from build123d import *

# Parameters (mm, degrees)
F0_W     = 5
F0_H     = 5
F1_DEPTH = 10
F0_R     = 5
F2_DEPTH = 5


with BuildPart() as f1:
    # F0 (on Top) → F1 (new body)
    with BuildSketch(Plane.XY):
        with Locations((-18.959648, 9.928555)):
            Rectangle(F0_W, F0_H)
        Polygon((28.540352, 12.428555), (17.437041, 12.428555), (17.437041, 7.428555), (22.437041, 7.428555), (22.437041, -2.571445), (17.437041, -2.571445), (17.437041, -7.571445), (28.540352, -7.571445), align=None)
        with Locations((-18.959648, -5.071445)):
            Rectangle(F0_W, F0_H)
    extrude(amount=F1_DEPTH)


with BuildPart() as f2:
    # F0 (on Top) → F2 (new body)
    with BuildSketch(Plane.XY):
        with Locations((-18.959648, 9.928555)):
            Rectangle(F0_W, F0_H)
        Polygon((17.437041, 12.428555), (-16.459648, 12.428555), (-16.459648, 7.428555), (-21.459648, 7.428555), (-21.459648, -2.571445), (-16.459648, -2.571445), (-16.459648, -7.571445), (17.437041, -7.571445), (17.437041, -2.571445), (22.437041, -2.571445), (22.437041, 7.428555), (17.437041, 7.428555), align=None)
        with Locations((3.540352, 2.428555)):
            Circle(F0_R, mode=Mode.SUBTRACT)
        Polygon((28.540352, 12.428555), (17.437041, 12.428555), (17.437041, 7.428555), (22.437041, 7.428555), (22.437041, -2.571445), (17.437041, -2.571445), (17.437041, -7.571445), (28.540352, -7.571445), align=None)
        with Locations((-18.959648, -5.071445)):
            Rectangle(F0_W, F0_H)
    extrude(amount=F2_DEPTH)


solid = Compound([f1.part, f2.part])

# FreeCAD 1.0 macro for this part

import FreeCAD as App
import Part
import Sketcher

V = App.Vector
Q = App.Units.Quantity

doc = App.newDocument("Part")
body = doc.addObject("PartDesign::Body", "Body")
body.AllowCompound = True

# Sketch on XY plane
sketch1 = doc.addObject("Sketcher::SketchObject", "Sketch")
body.addObject(sketch1)
sketch1.AttachmentSupport = (doc.XY_Plane, [""])
sketch1.MapMode = "FlatFace"
sketch1.addGeometry(Part.LineSegment(V(-21.459648, 12.428555, 0), V(-21.459648, 7.428555, 0)), False)
sketch1.addGeometry(Part.LineSegment(V(-21.459648, 7.428555, 0), V(-16.459648, 7.428555, 0)), False)
sketch1.addGeometry(Part.LineSegment(V(-16.459648, 7.428555, 0), V(-16.459648, 12.428555, 0)), False)
sketch1.addGeometry(Part.LineSegment(V(-16.459648, 12.428555, 0), V(-21.459648, 12.428555, 0)), False)
sketch1.addGeometry(Part.LineSegment(V(28.540352, 12.428555, 0), V(17.437041, 12.428555, 0)), False)
sketch1.addGeometry(Part.LineSegment(V(17.437041, 12.428555, 0), V(17.437041, 7.428555, 0)), False)
sketch1.addGeometry(Part.LineSegment(V(17.437041, 7.428555, 0), V(22.437041, 7.428555, 0)), False)
sketch1.addGeometry(Part.LineSegment(V(22.437041, 7.428555, 0), V(22.437041, -2.571445, 0)), False)
sketch1.addGeometry(Part.LineSegment(V(22.437041, -2.571445, 0), V(17.437041, -2.571445, 0)), False)
sketch1.addGeometry(Part.LineSegment(V(17.437041, -2.571445, 0), V(17.437041, -7.571445, 0)), False)
sketch1.addGeometry(Part.LineSegment(V(17.437041, -7.571445, 0), V(28.540352, -7.571445, 0)), False)
sketch1.addGeometry(Part.LineSegment(V(28.540352, -7.571445, 0), V(28.540352, 12.428555, 0)), False)
sketch1.addGeometry(Part.LineSegment(V(-21.459648, -2.571445, 0), V(-21.459648, -7.571445, 0)), False)
sketch1.addGeometry(Part.LineSegment(V(-21.459648, -7.571445, 0), V(-16.459648, -7.571445, 0)), False)
sketch1.addGeometry(Part.LineSegment(V(-16.459648, -7.571445, 0), V(-16.459648, -2.571445, 0)), False)
sketch1.addGeometry(Part.LineSegment(V(-16.459648, -2.571445, 0), V(-21.459648, -2.571445, 0)), False)
sketch1.addConstraint(Sketcher.Constraint("Coincident", 0, 2, 1, 1))
sketch1.addConstraint(Sketcher.Constraint("Coincident", 1, 2, 2, 1))
sketch1.addConstraint(Sketcher.Constraint("Coincident", 2, 2, 3, 1))
sketch1.addConstraint(Sketcher.Constraint("Coincident", 3, 2, 0, 1))
sketch1.addConstraint(Sketcher.Constraint("Coincident", 4, 2, 5, 1))
sketch1.addConstraint(Sketcher.Constraint("Coincident", 5, 2, 6, 1))
sketch1.addConstraint(Sketcher.Constraint("Coincident", 6, 2, 7, 1))
sketch1.addConstraint(Sketcher.Constraint("Coincident", 7, 2, 8, 1))
sketch1.addConstraint(Sketcher.Constraint("Coincident", 8, 2, 9, 1))
sketch1.addConstraint(Sketcher.Constraint("Coincident", 9, 2, 10, 1))
sketch1.addConstraint(Sketcher.Constraint("Coincident", 10, 2, 11, 1))
sketch1.addConstraint(Sketcher.Constraint("Coincident", 11, 2, 4, 1))
sketch1.addConstraint(Sketcher.Constraint("Coincident", 12, 2, 13, 1))
sketch1.addConstraint(Sketcher.Constraint("Coincident", 13, 2, 14, 1))
sketch1.addConstraint(Sketcher.Constraint("Coincident", 14, 2, 15, 1))
sketch1.addConstraint(Sketcher.Constraint("Coincident", 15, 2, 12, 1))
sketch1.addConstraint(Sketcher.Constraint("Vertical", 0))
sketch1.addConstraint(Sketcher.Constraint("Horizontal", 1))
sketch1.addConstraint(Sketcher.Constraint("Vertical", 2))
sketch1.addConstraint(Sketcher.Constraint("Horizontal", 3))
sketch1.addConstraint(Sketcher.Constraint("Horizontal", 4))
sketch1.addConstraint(Sketcher.Constraint("Vertical", 5))
sketch1.addConstraint(Sketcher.Constraint("Horizontal", 6))
sketch1.addConstraint(Sketcher.Constraint("Vertical", 7))
sketch1.addConstraint(Sketcher.Constraint("Horizontal", 8))
sketch1.addConstraint(Sketcher.Constraint("Vertical", 9))
sketch1.addConstraint(Sketcher.Constraint("Horizontal", 10))
sketch1.addConstraint(Sketcher.Constraint("Vertical", 11))
sketch1.addConstraint(Sketcher.Constraint("Vertical", 12))
sketch1.addConstraint(Sketcher.Constraint("Horizontal", 13))
sketch1.addConstraint(Sketcher.Constraint("Vertical", 14))
sketch1.addConstraint(Sketcher.Constraint("Horizontal", 15))
sketch1.addConstraint(Sketcher.Constraint("Horizontal", 3, 2, 4, 2))
sketch1.addConstraint(Sketcher.Constraint("Horizontal", 1, 2, 5, 2))
sketch1.addConstraint(Sketcher.Constraint("Horizontal", 10, 2, 12, 2))
sketch1.addConstraint(Sketcher.Constraint("Horizontal", 8, 2, 14, 2))
sketch1.addConstraint(Sketcher.Constraint("Vertical", 5, 2, 8, 2))
sketch1.addConstraint(Sketcher.Constraint("Vertical", 3, 2, 12, 2))
sketch1.addConstraint(Sketcher.Constraint("Vertical", 2, 2, 13, 2))
sketch1.addConstraint(Sketcher.Constraint("Equal", 3, 6))
sketch1.addConstraint(Sketcher.Constraint("Equal", 15, 0))
sketch1.addConstraint(Sketcher.Constraint("Equal", 5, 9))
sketch1.addConstraint(Sketcher.Constraint("DistanceX", 1, 1, 1, 2, Q("5 mm")))
sketch1.addConstraint(Sketcher.Constraint("DistanceY", 7, 2, 7, 1, Q("10 mm")))
sketch1.addConstraint(Sketcher.Constraint("DistanceX", 4, 2, 4, 1, Q("11.103311 mm")))
sketch1.addConstraint(Sketcher.Constraint("DistanceX", 0, 2, -1, 1, Q("21.459648 mm")))
sketch1.addConstraint(Sketcher.Constraint("DistanceX", -1, 1, 4, 2, Q("17.437041 mm")))
sketch1.addConstraint(Sketcher.Constraint("DistanceY", -1, 1, 0, 2, Q("7.428555 mm")))
pad1 = doc.addObject("PartDesign::Pad", "Pad")
body.addObject(pad1)
pad1.Profile = sketch1
pad1.Length = 10
body2 = doc.addObject("PartDesign::Body", "Body001")

# Sketch on XY plane
sketch2 = doc.addObject("Sketcher::SketchObject", "Sketch001")
body2.addObject(sketch2)
sketch2.AttachmentSupport = (doc.getObject("XY_Plane001"), [""])
sketch2.MapMode = "FlatFace"
sketch2.addGeometry(Part.LineSegment(V(-21.459648, 12.428555, 0), V(-21.459648, -7.571445, 0)), False)
sketch2.addGeometry(Part.LineSegment(V(-21.459648, -7.571445, 0), V(28.540352, -7.571445, 0)), False)
sketch2.addGeometry(Part.LineSegment(V(28.540352, -7.571445, 0), V(28.540352, 12.428555, 0)), False)
sketch2.addGeometry(Part.LineSegment(V(28.540352, 12.428555, 0), V(-21.459648, 12.428555, 0)), False)
sketch2.addGeometry(Part.Circle(V(3.540352, 2.428555, 0), V(0, 0, 1), 5), False)
sketch2.addConstraint(Sketcher.Constraint("Coincident", 0, 2, 1, 1))
sketch2.addConstraint(Sketcher.Constraint("Coincident", 1, 2, 2, 1))
sketch2.addConstraint(Sketcher.Constraint("Coincident", 2, 2, 3, 1))
sketch2.addConstraint(Sketcher.Constraint("Coincident", 3, 2, 0, 1))
sketch2.addConstraint(Sketcher.Constraint("Vertical", 0))
sketch2.addConstraint(Sketcher.Constraint("Horizontal", 1))
sketch2.addConstraint(Sketcher.Constraint("Vertical", 2))
sketch2.addConstraint(Sketcher.Constraint("Horizontal", 3))
sketch2.addConstraint(Sketcher.Constraint("Diameter", 4, Q("10 mm")))
sketch2.addConstraint(Sketcher.Constraint("DistanceX", 1, 1, 1, 2, Q("50 mm")))
sketch2.addConstraint(Sketcher.Constraint("DistanceY", 0, 2, 0, 1, Q("20 mm")))
sketch2.addConstraint(Sketcher.Constraint("DistanceX", 0, 2, 4, 3, Q("25 mm")))
sketch2.addConstraint(Sketcher.Constraint("DistanceY", 0, 2, 4, 3, Q("10 mm")))
sketch2.addConstraint(Sketcher.Constraint("DistanceX", -1, 1, 4, 3, Q("3.540352 mm")))
sketch2.addConstraint(Sketcher.Constraint("DistanceY", -1, 1, 4, 3, Q("2.428555 mm")))
pad2 = doc.addObject("PartDesign::Pad", "Pad001")
body2.addObject(pad2)
pad2.Profile = sketch2
pad2.Length = 5

doc.recompute()
